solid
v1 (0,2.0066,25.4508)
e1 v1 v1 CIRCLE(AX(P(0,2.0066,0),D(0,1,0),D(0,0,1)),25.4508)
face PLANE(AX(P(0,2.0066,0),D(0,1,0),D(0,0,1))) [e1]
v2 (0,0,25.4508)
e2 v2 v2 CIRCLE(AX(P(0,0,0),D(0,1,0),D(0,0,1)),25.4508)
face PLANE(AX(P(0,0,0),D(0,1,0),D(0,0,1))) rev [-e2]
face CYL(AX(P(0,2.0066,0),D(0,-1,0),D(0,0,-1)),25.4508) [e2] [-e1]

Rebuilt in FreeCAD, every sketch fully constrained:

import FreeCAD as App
import Part
import Sketcher
from FreeCAD import Vector
Q = App.Units.Quantity

doc = App.newDocument("Part")
body = doc.addObject("PartDesign::Body", "Body")

# Sketch on XZ plane
sketch1 = doc.addObject("Sketcher::SketchObject", "Sketch")
body.addObject(sketch1)
sketch1.AttachmentSupport = (doc.XZ_Plane, [""])
sketch1.MapMode = "FlatFace"
sketch1.addGeometry(Part.Circle(Vector(0, 0, 0), Vector(0, 0, 1), 25.4508), False)
sketch1.addConstraint([
    Sketcher.Constraint("Coincident", 0, 3, -1, 1),
    Sketcher.Constraint("Diameter", 0, Q("2.004 in")),
])
pad1 = doc.addObject("PartDesign::Pad", "Pad")
body.addObject(pad1)
pad1.Profile = sketch1
pad1.Length = Q("0.079 in")
pad1.Reversed = True

doc.recompute()
